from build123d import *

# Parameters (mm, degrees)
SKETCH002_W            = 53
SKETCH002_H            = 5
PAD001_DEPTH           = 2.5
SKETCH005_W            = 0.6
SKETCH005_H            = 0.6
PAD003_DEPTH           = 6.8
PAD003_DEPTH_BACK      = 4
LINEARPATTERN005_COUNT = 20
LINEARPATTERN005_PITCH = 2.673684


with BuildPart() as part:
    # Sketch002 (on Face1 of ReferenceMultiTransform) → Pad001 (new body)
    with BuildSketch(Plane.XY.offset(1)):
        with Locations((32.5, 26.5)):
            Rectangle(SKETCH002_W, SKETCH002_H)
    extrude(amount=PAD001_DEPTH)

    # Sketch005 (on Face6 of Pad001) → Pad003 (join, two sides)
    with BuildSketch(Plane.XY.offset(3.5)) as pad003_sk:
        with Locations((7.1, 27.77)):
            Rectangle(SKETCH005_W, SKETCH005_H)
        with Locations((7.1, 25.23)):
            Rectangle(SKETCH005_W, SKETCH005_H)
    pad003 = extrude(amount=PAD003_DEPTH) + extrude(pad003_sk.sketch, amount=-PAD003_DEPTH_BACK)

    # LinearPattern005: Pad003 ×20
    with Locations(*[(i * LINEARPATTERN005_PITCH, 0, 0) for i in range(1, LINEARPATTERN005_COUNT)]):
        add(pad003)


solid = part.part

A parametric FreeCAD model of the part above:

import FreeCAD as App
import Part
import Sketcher

V = App.Vector
Q = App.Units.Quantity

doc = App.newDocument("Part")
body = doc.addObject("PartDesign::Body", "Body")

sketch1 = body.newObject("Sketcher::SketchObject", "Sketch")
sketch1.AttachmentSupport = (doc.getObject("XY_Plane"), [""])
sketch1.MapMode = "FlatFace"
sketch1.AttachmentOffset = App.Placement(V(0, 0, 1), App.Rotation())
sketch1.addGeometry(Part.LineSegment(V(6, 29, 0), V(6, 24, 0)), False)
sketch1.addGeometry(Part.LineSegment(V(6, 24, 0), V(59, 24, 0)), False)
sketch1.addGeometry(Part.LineSegment(V(59, 24, 0), V(59, 29, 0)), False)
sketch1.addGeometry(Part.LineSegment(V(59, 29, 0), V(6, 29, 0)), False)
sketch1.addConstraint(Sketcher.Constraint("Coincident", 0, 2, 1, 1))
sketch1.addConstraint(Sketcher.Constraint("Coincident", 1, 2, 2, 1))
sketch1.addConstraint(Sketcher.Constraint("Coincident", 2, 2, 3, 1))
sketch1.addConstraint(Sketcher.Constraint("Coincident", 3, 2, 0, 1))
sketch1.addConstraint(Sketcher.Constraint("Vertical", 0))
sketch1.addConstraint(Sketcher.Constraint("Horizontal", 1))
sketch1.addConstraint(Sketcher.Constraint("Vertical", 2))
sketch1.addConstraint(Sketcher.Constraint("Horizontal", 3))
sketch1.addConstraint(Sketcher.Constraint("DistanceX", 1, 1, 1, 2, Q("53 mm")))
sketch1.addConstraint(Sketcher.Constraint("DistanceY", 0, 2, 0, 1, Q("5 mm")))
sketch1.addConstraint(Sketcher.Constraint("DistanceX", -1, 1, 0, 2, Q("6 mm")))
sketch1.addConstraint(Sketcher.Constraint("DistanceY", -1, 1, 0, 2, Q("24 mm")))
pad1 = body.newObject("PartDesign::Pad", "Pad")
pad1.Profile = sketch1
pad1.Length = 2.5

sketch2 = body.newObject("Sketcher::SketchObject", "Sketch001")
sketch2.AttachmentSupport = (doc.getObject("XY_Plane"), [""])
sketch2.MapMode = "FlatFace"
sketch2.AttachmentOffset = App.Placement(V(0, 0, 3.5), App.Rotation())
sketch2.addGeometry(Part.LineSegment(V(6.8, 28.1, 0), V(6.8, 27.5, 0)), False)
sketch2.addGeometry(Part.LineSegment(V(6.8, 27.5, 0), V(7.4, 27.5, 0)), False)
sketch2.addGeometry(Part.LineSegment(V(7.4, 27.5, 0), V(7.4, 28.1, 0)), False)
sketch2.addGeometry(Part.LineSegment(V(7.4, 28.1, 0), V(6.8, 28.1, 0)), False)
sketch2.addGeometry(Part.LineSegment(V(6.8, 25.5, 0), V(6.8, 24.9, 0)), False)
sketch2.addGeometry(Part.LineSegment(V(6.8, 24.9, 0), V(7.4, 24.9, 0)), False)
sketch2.addGeometry(Part.LineSegment(V(7.4, 24.9, 0), V(7.4, 25.5, 0)), False)
sketch2.addGeometry(Part.LineSegment(V(7.4, 25.5, 0), V(6.8, 25.5, 0)), False)
sketch2.addConstraint(Sketcher.Constraint("Coincident", 0, 2, 1, 1))
sketch2.addConstraint(Sketcher.Constraint("Coincident", 1, 2, 2, 1))
sketch2.addConstraint(Sketcher.Constraint("Coincident", 2, 2, 3, 1))
sketch2.addConstraint(Sketcher.Constraint("Coincident", 3, 2, 0, 1))
sketch2.addConstraint(Sketcher.Constraint("Coincident", 4, 2, 5, 1))
sketch2.addConstraint(Sketcher.Constraint("Coincident", 5, 2, 6, 1))
sketch2.addConstraint(Sketcher.Constraint("Coincident", 6, 2, 7, 1))
sketch2.addConstraint(Sketcher.Constraint("Coincident", 7, 2, 4, 1))
sketch2.addConstraint(Sketcher.Constraint("Vertical", 0))
sketch2.addConstraint(Sketcher.Constraint("Horizontal", 1))
sketch2.addConstraint(Sketcher.Constraint("Vertical", 2))
sketch2.addConstraint(Sketcher.Constraint("Horizontal", 3))
sketch2.addConstraint(Sketcher.Constraint("Vertical", 4))
sketch2.addConstraint(Sketcher.Constraint("Horizontal", 5))
sketch2.addConstraint(Sketcher.Constraint("Vertical", 6))
sketch2.addConstraint(Sketcher.Constraint("Horizontal", 7))
sketch2.addConstraint(Sketcher.Constraint("Vertical", 3, 2, 4, 2))
sketch2.addConstraint(Sketcher.Constraint("Vertical", 2, 2, 5, 2))
sketch2.addConstraint(Sketcher.Constraint("Equal", 7, 0))
sketch2.addConstraint(Sketcher.Constraint("Equal", 2, 4))
sketch2.addConstraint(Sketcher.Constraint("DistanceX", 1, 1, 1, 2, Q("0.6 mm")))
sketch2.addConstraint(Sketcher.Constraint("DistanceX", -1, 1, 0, 2, Q("6.8 mm")))
sketch2.addConstraint(Sketcher.Constraint("DistanceY", -1, 1, 0, 2, Q("27.47 mm")))
sketch2.addConstraint(Sketcher.Constraint("DistanceY", -1, 1, 4, 2, Q("24.93 mm")))
pad2 = body.newObject("PartDesign::Pad", "Pad001")
pad2.Profile = sketch2
pad2.Type = "TwoLengths"
pad2.Length = 6.8
pad2.Length2 = 4
doc.recompute()

linearpattern = body.newObject("PartDesign::LinearPattern", "LinearPattern")
linearpattern.Originals = [pad2]
linearpattern.Direction = (doc.getObject("X_Axis"), [""])
linearpattern.Mode = "offset"
linearpattern.Offset = 2.673684
linearpattern.Occurrences = 20
body.Tip = linearpattern

doc.recompute()
